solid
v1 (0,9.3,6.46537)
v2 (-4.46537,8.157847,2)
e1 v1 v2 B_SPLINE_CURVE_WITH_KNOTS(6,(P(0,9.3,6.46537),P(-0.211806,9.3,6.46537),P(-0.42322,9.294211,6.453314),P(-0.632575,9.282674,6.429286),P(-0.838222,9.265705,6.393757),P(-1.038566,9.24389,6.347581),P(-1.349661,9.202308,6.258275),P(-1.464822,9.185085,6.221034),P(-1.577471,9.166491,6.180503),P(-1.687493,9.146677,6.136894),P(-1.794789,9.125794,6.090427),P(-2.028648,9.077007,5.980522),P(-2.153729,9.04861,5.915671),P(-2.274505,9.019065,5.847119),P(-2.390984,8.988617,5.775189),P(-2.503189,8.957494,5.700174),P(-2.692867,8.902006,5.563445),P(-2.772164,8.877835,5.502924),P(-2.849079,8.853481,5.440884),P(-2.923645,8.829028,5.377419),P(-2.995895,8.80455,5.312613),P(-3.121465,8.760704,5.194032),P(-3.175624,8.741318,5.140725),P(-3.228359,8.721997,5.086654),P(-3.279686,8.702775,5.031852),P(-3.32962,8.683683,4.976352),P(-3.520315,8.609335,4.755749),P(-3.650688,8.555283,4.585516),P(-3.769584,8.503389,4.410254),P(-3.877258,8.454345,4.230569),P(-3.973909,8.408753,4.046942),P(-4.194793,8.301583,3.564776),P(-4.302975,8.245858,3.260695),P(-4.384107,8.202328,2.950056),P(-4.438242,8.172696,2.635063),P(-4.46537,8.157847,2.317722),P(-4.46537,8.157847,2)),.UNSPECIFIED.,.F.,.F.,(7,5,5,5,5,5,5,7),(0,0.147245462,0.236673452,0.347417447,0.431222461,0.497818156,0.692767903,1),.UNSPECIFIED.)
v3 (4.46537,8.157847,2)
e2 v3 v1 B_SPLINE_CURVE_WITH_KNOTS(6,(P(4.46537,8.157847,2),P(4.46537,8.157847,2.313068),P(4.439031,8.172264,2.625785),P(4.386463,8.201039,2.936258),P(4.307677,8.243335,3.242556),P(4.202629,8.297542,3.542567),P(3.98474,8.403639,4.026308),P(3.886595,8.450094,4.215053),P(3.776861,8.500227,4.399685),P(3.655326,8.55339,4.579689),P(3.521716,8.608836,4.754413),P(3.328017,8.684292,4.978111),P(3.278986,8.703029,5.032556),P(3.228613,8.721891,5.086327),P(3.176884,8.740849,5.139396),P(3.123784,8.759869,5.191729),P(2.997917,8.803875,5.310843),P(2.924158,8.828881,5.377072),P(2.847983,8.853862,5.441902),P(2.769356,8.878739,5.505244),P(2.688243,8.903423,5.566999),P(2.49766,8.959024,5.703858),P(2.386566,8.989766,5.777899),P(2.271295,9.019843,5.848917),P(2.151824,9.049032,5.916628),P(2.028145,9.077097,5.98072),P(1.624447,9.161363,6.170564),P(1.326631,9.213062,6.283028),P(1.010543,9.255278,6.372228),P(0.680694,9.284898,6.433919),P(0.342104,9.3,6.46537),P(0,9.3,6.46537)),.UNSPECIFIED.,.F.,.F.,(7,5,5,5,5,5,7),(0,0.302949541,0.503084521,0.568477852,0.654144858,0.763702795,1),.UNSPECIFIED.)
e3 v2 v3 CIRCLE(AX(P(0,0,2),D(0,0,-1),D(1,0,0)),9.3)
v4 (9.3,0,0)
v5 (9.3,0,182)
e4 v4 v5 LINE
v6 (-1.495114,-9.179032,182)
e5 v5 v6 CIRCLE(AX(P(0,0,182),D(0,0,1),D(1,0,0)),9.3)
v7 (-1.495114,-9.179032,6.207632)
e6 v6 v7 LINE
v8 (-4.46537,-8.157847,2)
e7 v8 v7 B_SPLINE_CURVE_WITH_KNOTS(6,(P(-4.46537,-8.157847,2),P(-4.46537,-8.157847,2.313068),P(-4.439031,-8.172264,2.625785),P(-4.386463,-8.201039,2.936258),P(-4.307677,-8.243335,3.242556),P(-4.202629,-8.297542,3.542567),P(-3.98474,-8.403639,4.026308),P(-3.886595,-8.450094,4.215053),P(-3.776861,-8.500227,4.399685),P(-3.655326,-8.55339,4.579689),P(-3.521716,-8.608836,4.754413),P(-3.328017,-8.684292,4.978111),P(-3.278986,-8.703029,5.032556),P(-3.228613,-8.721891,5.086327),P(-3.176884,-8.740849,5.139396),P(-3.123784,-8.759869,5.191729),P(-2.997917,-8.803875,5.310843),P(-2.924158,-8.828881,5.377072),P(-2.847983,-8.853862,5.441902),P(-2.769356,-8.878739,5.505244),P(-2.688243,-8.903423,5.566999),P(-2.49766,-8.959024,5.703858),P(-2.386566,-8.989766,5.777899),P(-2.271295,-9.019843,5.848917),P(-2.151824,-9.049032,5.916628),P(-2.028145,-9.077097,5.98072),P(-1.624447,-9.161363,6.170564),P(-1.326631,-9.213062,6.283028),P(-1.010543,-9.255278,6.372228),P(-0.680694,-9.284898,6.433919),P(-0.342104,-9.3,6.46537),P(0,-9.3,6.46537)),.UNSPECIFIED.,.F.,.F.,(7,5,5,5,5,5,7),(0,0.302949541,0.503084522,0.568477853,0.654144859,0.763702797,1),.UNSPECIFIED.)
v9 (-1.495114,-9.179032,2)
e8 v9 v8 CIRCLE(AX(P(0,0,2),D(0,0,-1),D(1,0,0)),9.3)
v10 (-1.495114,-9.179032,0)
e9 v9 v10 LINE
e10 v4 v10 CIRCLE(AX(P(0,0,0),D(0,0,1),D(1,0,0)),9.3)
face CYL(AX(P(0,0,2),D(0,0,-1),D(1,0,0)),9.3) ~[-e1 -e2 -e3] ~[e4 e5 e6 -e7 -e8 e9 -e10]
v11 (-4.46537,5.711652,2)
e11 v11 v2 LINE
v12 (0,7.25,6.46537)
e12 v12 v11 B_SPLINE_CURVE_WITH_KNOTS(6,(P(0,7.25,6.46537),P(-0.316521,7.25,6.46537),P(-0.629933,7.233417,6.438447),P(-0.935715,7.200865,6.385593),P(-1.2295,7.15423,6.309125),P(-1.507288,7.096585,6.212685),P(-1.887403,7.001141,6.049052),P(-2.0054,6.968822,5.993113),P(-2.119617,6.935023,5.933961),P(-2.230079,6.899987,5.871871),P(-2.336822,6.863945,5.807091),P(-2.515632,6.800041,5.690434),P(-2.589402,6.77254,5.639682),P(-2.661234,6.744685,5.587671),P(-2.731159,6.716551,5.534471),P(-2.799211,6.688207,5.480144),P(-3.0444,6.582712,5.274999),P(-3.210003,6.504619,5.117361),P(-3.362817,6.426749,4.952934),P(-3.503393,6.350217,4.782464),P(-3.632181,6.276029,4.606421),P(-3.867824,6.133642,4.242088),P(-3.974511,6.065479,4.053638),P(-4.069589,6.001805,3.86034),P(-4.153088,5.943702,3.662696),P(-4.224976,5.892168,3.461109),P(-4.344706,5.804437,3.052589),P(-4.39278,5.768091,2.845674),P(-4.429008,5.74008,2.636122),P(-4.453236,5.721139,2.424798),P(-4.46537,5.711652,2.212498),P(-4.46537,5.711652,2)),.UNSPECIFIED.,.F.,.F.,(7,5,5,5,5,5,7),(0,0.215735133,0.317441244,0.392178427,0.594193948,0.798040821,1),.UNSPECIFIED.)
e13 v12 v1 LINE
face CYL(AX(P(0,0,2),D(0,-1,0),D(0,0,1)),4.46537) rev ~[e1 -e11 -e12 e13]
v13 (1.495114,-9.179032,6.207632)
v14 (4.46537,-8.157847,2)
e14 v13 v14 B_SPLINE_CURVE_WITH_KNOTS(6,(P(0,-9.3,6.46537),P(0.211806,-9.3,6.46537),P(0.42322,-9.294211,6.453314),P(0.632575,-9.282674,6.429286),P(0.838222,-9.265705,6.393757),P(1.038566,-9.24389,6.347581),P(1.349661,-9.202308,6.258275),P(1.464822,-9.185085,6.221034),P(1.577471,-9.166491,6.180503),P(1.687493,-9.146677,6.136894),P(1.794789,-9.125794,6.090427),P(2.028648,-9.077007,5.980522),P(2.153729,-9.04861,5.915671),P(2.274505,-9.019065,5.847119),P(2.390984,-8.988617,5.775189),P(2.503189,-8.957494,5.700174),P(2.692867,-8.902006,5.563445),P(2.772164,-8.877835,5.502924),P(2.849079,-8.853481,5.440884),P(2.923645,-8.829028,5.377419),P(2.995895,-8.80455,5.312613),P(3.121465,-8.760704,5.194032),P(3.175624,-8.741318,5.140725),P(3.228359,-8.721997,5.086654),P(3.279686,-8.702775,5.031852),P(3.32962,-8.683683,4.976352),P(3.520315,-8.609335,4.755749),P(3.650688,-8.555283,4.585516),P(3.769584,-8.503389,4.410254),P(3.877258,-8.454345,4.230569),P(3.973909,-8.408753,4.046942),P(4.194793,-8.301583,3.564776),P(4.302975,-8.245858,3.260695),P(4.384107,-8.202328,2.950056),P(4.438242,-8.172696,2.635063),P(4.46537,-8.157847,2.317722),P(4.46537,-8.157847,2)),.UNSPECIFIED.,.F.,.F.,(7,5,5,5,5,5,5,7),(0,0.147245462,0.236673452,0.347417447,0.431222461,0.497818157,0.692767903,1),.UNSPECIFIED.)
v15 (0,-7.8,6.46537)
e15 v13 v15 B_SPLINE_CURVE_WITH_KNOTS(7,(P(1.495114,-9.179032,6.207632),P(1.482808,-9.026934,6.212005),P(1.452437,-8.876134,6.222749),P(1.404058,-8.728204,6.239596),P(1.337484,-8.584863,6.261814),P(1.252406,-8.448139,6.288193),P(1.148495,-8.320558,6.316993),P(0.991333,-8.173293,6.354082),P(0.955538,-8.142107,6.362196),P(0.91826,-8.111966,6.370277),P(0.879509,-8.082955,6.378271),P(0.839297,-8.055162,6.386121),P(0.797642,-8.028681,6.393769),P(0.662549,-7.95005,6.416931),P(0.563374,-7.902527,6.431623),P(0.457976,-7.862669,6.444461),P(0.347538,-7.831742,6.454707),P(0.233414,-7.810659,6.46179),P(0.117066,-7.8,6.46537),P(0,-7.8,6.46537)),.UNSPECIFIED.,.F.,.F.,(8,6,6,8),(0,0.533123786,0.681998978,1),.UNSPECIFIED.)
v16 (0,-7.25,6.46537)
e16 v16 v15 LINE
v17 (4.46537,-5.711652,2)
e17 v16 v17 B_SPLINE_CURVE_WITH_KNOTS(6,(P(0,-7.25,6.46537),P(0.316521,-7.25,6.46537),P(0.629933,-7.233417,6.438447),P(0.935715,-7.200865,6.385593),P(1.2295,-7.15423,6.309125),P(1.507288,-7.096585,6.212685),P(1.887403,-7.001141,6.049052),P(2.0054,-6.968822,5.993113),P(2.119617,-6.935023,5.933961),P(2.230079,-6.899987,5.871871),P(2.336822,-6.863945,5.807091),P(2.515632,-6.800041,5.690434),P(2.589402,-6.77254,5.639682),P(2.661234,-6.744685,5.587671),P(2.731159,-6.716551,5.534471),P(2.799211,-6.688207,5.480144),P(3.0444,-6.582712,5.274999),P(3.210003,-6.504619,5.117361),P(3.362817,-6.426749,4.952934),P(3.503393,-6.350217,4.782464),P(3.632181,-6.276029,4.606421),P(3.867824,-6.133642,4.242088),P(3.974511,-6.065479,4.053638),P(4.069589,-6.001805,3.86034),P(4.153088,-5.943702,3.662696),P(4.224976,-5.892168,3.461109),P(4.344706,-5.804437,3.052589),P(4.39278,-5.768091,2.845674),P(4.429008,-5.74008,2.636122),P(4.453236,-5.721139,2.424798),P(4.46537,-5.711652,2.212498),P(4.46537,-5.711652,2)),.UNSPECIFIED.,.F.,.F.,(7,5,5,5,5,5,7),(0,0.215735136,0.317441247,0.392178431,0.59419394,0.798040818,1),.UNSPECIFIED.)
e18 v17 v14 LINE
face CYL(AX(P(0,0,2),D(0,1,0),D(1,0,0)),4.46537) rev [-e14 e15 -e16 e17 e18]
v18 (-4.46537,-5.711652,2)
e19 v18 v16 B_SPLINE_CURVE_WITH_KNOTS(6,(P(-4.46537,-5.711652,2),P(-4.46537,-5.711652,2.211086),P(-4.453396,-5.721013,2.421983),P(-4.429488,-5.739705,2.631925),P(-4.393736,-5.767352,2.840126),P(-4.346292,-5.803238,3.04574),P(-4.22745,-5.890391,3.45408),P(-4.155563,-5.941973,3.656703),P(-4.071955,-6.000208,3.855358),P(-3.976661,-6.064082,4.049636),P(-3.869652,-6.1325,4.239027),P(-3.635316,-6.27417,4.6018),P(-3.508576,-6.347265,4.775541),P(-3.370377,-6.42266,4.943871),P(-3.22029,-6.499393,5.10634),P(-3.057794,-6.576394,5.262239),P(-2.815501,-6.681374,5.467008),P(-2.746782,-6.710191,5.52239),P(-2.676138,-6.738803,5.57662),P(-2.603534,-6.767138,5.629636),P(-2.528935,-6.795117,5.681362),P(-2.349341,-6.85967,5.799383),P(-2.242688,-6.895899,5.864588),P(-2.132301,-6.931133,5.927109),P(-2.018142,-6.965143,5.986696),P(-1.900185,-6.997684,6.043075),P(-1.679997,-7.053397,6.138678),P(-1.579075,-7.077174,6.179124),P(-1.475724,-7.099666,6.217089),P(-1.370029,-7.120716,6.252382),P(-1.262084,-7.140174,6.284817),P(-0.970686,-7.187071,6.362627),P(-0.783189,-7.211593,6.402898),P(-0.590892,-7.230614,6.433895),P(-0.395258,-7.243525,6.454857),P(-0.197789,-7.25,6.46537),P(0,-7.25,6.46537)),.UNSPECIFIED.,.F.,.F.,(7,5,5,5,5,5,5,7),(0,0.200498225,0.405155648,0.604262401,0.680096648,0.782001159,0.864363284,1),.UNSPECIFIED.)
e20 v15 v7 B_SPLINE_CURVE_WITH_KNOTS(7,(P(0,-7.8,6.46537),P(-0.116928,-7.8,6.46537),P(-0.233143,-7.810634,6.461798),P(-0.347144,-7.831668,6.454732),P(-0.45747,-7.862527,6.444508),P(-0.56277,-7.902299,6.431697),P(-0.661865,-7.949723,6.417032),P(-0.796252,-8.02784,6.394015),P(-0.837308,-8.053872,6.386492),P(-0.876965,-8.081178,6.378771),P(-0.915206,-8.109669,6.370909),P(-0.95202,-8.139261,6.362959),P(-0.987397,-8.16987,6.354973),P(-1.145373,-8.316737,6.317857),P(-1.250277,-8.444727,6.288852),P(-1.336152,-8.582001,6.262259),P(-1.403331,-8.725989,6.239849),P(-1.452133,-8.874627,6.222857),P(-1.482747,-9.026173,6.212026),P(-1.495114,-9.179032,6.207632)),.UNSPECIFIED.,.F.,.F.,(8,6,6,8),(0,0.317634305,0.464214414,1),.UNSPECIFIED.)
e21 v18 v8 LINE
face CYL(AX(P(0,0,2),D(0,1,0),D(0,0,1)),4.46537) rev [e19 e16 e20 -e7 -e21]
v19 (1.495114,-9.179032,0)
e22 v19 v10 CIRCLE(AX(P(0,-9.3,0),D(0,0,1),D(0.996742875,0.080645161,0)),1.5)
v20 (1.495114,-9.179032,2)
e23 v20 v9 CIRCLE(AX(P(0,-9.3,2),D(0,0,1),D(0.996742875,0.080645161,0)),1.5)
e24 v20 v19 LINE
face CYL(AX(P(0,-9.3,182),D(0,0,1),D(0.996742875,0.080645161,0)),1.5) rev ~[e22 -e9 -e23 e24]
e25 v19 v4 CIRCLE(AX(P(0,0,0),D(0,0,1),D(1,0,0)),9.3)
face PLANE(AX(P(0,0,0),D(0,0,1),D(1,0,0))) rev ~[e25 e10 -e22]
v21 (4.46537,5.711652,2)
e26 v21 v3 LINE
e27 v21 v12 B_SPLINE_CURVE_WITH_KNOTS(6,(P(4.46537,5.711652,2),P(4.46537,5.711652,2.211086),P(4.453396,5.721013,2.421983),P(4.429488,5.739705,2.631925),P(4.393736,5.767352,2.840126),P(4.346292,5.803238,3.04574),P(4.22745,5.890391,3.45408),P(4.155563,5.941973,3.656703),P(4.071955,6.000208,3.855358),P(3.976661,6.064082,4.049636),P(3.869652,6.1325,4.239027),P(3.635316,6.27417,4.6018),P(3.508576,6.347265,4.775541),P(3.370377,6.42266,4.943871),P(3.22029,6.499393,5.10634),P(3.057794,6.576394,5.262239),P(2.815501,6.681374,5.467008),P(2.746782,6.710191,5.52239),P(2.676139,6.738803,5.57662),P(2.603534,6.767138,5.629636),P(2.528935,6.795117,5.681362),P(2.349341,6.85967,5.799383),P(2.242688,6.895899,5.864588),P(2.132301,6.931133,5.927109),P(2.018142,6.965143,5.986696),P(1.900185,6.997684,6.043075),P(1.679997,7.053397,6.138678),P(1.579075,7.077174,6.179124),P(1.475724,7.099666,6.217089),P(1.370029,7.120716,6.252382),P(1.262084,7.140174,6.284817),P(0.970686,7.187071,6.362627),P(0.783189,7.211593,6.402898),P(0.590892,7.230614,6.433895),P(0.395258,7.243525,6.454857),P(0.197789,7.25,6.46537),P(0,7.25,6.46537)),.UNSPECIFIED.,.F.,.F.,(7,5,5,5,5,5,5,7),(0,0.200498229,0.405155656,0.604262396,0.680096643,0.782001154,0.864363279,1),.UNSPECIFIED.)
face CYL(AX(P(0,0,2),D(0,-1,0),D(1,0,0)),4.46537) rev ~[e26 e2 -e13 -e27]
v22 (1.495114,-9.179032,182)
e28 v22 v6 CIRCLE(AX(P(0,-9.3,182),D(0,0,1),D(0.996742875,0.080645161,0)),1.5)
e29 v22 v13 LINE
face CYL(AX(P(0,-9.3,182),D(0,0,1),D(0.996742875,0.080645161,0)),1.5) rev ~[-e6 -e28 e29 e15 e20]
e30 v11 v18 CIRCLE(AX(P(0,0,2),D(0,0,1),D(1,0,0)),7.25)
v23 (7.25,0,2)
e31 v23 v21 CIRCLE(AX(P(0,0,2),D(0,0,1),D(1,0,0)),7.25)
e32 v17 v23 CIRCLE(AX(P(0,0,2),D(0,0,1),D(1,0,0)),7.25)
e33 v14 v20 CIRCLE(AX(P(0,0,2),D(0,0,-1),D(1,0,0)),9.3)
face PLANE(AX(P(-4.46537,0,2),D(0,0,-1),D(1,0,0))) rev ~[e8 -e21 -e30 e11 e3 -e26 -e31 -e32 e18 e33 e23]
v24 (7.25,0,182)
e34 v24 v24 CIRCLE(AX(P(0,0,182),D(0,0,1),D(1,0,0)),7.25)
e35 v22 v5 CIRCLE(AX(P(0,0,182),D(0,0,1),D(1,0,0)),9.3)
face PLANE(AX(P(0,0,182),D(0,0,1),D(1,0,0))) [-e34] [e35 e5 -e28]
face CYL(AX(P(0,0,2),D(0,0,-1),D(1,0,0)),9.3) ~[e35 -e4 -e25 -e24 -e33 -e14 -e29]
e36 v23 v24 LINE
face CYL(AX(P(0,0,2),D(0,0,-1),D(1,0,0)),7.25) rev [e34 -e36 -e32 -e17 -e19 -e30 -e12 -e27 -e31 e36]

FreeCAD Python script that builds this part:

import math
import FreeCAD as App
import Part
import Sketcher
Q = App.Units.Quantity

doc = App.newDocument("Part")
body = doc.addObject("PartDesign::Body", "Body")

# Sketch on XY plane
sketch1 = body.newObject("Sketcher::SketchObject", "Sketch")
sketch1.AttachmentSupport = (doc.getObject("XY_Plane"), [""])
sketch1.MapMode = "FlatFace"
sketch1.addGeometry(Part.Circle(App.Vector(0, 0, 0), App.Vector(0, 0, 1), 9.3), False)
sketch1.addConstraint([
    Sketcher.Constraint("Coincident", 0, 3, -1, 1),
    Sketcher.Constraint("Diameter", 0, Q("18.6 mm")),
])
pad1 = body.newObject("PartDesign::Pad", "Pad")
pad1.Profile = sketch1
pad1.Length = 2

# Sketch on XY plane
sketch2 = body.newObject("Sketcher::SketchObject", "Sketch001")
sketch2.AttachmentSupport = (doc.getObject("XY_Plane"), [""])
sketch2.MapMode = "FlatFace"
sketch2.AttachmentOffset = App.Placement(App.Vector(0, 0, 2), App.Rotation())
sketch2.addGeometry([
    Part.Circle(App.Vector(0, 0, 0), App.Vector(0, 0, 1), 9.3),
    Part.Circle(App.Vector(0, 0, 0), App.Vector(0, 0, 1), 7.25),
], False)
sketch2.addConstraint([
    Sketcher.Constraint("Coincident", 0, 3, -1, 1),
    Sketcher.Constraint("Coincident", 1, 3, -1, 1),
    Sketcher.Constraint("Diameter", 0, Q("18.6 mm")),
    Sketcher.Constraint("Diameter", 1, Q("14.5 mm")),
])
pad2 = body.newObject("PartDesign::Pad", "Pad001")
pad2.Profile = sketch2
pad2.Length = 180

# Sketch on XZ plane
sketch3 = body.newObject("Sketcher::SketchObject", "Sketch002")
sketch3.AttachmentSupport = (doc.getObject("XZ_Plane"), [""])
sketch3.MapMode = "FlatFace"
sketch3.addGeometry([
    Part.ArcOfCircle(Part.Circle(App.Vector(0, 2, 0), App.Vector(0, 0, 1), 4.46537), math.radians(90), math.radians(180)),
    Part.LineSegment(App.Vector(-4.46537, 2, 0), App.Vector(4.46537, 2, 0)),
    Part.ArcOfCircle(Part.Circle(App.Vector(0, 2, 0), App.Vector(0, 0, 1), 4.46537), math.radians(0), math.radians(90)),
], False)
sketch3.addConstraint([
    Sketcher.Constraint("Coincident", 0, 2, 1, 1),
    Sketcher.Constraint("Coincident", 1, 2, 2, 1),
    Sketcher.Constraint("Tangent", 2, 2, 0, 1),
    Sketcher.Constraint("Horizontal", 1),
    Sketcher.Constraint("Equal", 0, 2),
    Sketcher.Constraint("PointOnObject", 0, 3, -2),
    Sketcher.Constraint("PointOnObject", 2, 2, -2),
    Sketcher.Constraint("Horizontal", 2, 3, 0, 2),
    Sketcher.Constraint("DistanceY", -1, 1, 0, 3, Q("2 mm")),
    Sketcher.Constraint("Radius", 0, Q("4.46537 mm")),
])
pocket1 = body.newObject("PartDesign::Pocket", "Pocket")
pocket1.Profile = sketch3
pocket1.Type = "ThroughAll"

# Sketch on XZ plane
sketch4 = body.newObject("Sketcher::SketchObject", "Sketch003")
sketch4.AttachmentSupport = (doc.getObject("XZ_Plane"), [""])
sketch4.MapMode = "FlatFace"
sketch4.addGeometry([
    Part.ArcOfCircle(Part.Circle(App.Vector(0, 2, 0), App.Vector(0, 0, 1), 4.46537), math.radians(90), math.radians(180)),
    Part.LineSegment(App.Vector(-4.46537, 2, 0), App.Vector(4.46537, 2, 0)),
    Part.ArcOfCircle(Part.Circle(App.Vector(0, 2, 0), App.Vector(0, 0, 1), 4.46537), math.radians(0), math.radians(90)),
], False)
sketch4.addConstraint([
    Sketcher.Constraint("Coincident", 0, 2, 1, 1),
    Sketcher.Constraint("Coincident", 1, 2, 2, 1),
    Sketcher.Constraint("Tangent", 2, 2, 0, 1),
    Sketcher.Constraint("Horizontal", 1),
    Sketcher.Constraint("Equal", 0, 2),
    Sketcher.Constraint("PointOnObject", 0, 3, -2),
    Sketcher.Constraint("PointOnObject", 2, 2, -2),
    Sketcher.Constraint("Horizontal", 2, 3, 0, 2),
    Sketcher.Constraint("DistanceY", -1, 1, 0, 3, Q("2 mm")),
    Sketcher.Constraint("Radius", 0, Q("4.46537 mm")),
])
pocket2 = body.newObject("PartDesign::Pocket", "Pocket001")
pocket2.Profile = sketch4
pocket2.Type = "ThroughAll"
pocket2.Reversed = True

# Sketch on XY plane
sketch5 = body.newObject("Sketcher::SketchObject", "Sketch004")
sketch5.AttachmentSupport = (doc.getObject("XY_Plane"), [""])
sketch5.MapMode = "FlatFace"
sketch5.AttachmentOffset = App.Placement(App.Vector(0, 0, 182), App.Rotation())
sketch5.addGeometry([
    Part.ArcOfCircle(Part.Circle(App.Vector(0, 0, 0), App.Vector(0, 0, 1), 9.3), math.radians(-99.251301), math.radians(-80.748699)),
    Part.ArcOfCircle(Part.Circle(App.Vector(0, -9.3, 0), App.Vector(0, 0, 1), 1.5), math.radians(4.625651), math.radians(175.374349)),
], False)
sketch5.addConstraint([
    Sketcher.Constraint("Coincident", 0, 1, 1, 2),
    Sketcher.Constraint("Coincident", 1, 1, 0, 2),
    Sketcher.Constraint("Coincident", 0, 3, -1, 1),
    Sketcher.Constraint("PointOnObject", 1, 3, -2),
    Sketcher.Constraint("Radius", 0, Q("9.3 mm")),
    Sketcher.Constraint("Radius", 1, Q("1.5 mm")),
    Sketcher.Constraint("DistanceY", 1, 3, -1, 1, Q("9.3 mm")),
])
pocket3 = body.newObject("PartDesign::Pocket", "Pocket002")
pocket3.Profile = sketch5
pocket3.Type = "ThroughAll"

doc.recompute()
